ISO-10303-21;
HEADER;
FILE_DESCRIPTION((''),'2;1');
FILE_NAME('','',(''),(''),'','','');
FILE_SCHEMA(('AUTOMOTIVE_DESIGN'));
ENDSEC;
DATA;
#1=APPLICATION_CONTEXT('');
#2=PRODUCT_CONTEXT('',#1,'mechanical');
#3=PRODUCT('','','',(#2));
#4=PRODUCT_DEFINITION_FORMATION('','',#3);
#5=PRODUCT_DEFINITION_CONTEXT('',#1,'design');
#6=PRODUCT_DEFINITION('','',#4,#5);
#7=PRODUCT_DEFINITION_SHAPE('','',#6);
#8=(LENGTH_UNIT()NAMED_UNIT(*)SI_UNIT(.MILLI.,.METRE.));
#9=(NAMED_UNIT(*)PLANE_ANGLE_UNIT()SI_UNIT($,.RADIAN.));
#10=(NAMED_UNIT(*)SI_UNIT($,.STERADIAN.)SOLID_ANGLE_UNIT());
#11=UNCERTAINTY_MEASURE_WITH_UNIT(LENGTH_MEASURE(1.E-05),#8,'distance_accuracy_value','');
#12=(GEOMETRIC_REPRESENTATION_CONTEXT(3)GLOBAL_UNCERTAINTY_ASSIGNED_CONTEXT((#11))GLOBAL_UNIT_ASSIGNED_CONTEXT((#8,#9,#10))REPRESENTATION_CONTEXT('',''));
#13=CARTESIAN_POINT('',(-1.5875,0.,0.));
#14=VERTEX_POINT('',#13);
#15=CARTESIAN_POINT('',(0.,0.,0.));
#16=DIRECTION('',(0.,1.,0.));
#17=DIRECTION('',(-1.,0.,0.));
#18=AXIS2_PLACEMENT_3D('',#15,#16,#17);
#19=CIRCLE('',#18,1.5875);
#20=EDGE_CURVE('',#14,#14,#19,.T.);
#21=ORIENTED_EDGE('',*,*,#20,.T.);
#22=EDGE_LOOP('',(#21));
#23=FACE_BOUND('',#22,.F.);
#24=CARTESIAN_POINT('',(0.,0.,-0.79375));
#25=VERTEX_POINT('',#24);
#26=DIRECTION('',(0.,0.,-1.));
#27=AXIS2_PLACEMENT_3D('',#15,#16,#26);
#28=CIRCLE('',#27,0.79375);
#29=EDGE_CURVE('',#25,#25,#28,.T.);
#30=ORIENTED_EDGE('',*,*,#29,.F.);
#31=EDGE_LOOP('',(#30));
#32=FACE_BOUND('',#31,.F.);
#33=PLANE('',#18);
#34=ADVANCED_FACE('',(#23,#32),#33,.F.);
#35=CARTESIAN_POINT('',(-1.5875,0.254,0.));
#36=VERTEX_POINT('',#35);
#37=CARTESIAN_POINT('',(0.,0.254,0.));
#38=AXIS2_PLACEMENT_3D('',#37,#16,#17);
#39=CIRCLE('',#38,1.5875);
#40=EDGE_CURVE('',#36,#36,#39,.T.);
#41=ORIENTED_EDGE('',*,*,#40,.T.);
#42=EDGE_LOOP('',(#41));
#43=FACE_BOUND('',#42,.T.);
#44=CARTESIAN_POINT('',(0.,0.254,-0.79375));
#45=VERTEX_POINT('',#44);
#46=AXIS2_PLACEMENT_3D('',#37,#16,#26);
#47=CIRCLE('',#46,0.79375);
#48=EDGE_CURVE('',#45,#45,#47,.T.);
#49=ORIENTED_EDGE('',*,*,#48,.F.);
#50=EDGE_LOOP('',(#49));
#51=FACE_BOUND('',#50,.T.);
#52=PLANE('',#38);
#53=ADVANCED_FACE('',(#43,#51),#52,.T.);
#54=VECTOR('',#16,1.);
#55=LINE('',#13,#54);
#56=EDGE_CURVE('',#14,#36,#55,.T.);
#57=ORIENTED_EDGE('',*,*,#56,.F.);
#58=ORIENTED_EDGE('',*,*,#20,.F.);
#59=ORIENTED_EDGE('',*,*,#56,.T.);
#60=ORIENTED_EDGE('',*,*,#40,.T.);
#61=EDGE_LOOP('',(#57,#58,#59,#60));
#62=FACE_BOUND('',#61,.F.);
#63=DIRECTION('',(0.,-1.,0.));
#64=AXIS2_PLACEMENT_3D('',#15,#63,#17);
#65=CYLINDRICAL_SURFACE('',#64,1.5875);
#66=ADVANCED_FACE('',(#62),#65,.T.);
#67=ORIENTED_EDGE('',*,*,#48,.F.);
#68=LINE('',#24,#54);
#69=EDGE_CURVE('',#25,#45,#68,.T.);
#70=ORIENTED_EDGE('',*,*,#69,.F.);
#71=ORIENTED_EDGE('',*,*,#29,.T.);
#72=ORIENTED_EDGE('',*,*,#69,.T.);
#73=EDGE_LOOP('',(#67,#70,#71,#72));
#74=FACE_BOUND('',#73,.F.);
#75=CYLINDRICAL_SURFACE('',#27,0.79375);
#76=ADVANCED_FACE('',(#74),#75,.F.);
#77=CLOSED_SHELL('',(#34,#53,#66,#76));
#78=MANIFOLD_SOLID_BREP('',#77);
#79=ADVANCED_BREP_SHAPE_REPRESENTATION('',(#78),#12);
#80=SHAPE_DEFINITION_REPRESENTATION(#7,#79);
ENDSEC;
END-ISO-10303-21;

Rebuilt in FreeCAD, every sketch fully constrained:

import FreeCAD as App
import Part
import Sketcher
Q = App.Units.Quantity

doc = App.newDocument("Part")
body = doc.addObject("PartDesign::Body", "Body")

# Sketch on XZ plane
sketch1 = body.newObject("Sketcher::SketchObject", "Sketch")
sketch1.AttachmentSupport = (doc.getObject("XZ_Plane"), [""])
sketch1.MapMode = "FlatFace"
sketch1.addGeometry(Part.Circle(App.Vector(0, 0, 0), App.Vector(0, 0, 1), 1.6), False)
sketch1.addConstraint([
    Sketcher.Constraint("Coincident", 0, 3, -1, 1),
    Sketcher.Constraint("Diameter", 0, Q("0.125 in")),
])
pad1 = body.newObject("PartDesign::Pad", "Pad")
pad1.Profile = sketch1
pad1.Length = Q("0.01 in")
pad1.Reversed = True

# Sketch on XZ plane
sketch2 = body.newObject("Sketcher::SketchObject", "Sketch001")
sketch2.AttachmentSupport = (doc.getObject("XZ_Plane"), [""])
sketch2.MapMode = "FlatFace"
sketch2.addGeometry(Part.Circle(App.Vector(0, 0, 0), App.Vector(0, 0, 1), 0.8), False)
sketch2.addConstraint([
    Sketcher.Constraint("Coincident", 0, 3, -1, 1),
    Sketcher.Constraint("Diameter", 0, Q("0.0625 in")),
])
doc.recompute()
hole = body.newObject("PartDesign::Hole", "Hole")
hole.Profile = sketch2
hole.ThreadType = "None"
hole.Diameter = Q("0.0625 in")
hole.DepthType = "Dimension"
hole.Depth = Q("0.0625 in")
hole.DrillPoint = "Angled"
hole.DrillPointAngle = 118

doc.recompute()
